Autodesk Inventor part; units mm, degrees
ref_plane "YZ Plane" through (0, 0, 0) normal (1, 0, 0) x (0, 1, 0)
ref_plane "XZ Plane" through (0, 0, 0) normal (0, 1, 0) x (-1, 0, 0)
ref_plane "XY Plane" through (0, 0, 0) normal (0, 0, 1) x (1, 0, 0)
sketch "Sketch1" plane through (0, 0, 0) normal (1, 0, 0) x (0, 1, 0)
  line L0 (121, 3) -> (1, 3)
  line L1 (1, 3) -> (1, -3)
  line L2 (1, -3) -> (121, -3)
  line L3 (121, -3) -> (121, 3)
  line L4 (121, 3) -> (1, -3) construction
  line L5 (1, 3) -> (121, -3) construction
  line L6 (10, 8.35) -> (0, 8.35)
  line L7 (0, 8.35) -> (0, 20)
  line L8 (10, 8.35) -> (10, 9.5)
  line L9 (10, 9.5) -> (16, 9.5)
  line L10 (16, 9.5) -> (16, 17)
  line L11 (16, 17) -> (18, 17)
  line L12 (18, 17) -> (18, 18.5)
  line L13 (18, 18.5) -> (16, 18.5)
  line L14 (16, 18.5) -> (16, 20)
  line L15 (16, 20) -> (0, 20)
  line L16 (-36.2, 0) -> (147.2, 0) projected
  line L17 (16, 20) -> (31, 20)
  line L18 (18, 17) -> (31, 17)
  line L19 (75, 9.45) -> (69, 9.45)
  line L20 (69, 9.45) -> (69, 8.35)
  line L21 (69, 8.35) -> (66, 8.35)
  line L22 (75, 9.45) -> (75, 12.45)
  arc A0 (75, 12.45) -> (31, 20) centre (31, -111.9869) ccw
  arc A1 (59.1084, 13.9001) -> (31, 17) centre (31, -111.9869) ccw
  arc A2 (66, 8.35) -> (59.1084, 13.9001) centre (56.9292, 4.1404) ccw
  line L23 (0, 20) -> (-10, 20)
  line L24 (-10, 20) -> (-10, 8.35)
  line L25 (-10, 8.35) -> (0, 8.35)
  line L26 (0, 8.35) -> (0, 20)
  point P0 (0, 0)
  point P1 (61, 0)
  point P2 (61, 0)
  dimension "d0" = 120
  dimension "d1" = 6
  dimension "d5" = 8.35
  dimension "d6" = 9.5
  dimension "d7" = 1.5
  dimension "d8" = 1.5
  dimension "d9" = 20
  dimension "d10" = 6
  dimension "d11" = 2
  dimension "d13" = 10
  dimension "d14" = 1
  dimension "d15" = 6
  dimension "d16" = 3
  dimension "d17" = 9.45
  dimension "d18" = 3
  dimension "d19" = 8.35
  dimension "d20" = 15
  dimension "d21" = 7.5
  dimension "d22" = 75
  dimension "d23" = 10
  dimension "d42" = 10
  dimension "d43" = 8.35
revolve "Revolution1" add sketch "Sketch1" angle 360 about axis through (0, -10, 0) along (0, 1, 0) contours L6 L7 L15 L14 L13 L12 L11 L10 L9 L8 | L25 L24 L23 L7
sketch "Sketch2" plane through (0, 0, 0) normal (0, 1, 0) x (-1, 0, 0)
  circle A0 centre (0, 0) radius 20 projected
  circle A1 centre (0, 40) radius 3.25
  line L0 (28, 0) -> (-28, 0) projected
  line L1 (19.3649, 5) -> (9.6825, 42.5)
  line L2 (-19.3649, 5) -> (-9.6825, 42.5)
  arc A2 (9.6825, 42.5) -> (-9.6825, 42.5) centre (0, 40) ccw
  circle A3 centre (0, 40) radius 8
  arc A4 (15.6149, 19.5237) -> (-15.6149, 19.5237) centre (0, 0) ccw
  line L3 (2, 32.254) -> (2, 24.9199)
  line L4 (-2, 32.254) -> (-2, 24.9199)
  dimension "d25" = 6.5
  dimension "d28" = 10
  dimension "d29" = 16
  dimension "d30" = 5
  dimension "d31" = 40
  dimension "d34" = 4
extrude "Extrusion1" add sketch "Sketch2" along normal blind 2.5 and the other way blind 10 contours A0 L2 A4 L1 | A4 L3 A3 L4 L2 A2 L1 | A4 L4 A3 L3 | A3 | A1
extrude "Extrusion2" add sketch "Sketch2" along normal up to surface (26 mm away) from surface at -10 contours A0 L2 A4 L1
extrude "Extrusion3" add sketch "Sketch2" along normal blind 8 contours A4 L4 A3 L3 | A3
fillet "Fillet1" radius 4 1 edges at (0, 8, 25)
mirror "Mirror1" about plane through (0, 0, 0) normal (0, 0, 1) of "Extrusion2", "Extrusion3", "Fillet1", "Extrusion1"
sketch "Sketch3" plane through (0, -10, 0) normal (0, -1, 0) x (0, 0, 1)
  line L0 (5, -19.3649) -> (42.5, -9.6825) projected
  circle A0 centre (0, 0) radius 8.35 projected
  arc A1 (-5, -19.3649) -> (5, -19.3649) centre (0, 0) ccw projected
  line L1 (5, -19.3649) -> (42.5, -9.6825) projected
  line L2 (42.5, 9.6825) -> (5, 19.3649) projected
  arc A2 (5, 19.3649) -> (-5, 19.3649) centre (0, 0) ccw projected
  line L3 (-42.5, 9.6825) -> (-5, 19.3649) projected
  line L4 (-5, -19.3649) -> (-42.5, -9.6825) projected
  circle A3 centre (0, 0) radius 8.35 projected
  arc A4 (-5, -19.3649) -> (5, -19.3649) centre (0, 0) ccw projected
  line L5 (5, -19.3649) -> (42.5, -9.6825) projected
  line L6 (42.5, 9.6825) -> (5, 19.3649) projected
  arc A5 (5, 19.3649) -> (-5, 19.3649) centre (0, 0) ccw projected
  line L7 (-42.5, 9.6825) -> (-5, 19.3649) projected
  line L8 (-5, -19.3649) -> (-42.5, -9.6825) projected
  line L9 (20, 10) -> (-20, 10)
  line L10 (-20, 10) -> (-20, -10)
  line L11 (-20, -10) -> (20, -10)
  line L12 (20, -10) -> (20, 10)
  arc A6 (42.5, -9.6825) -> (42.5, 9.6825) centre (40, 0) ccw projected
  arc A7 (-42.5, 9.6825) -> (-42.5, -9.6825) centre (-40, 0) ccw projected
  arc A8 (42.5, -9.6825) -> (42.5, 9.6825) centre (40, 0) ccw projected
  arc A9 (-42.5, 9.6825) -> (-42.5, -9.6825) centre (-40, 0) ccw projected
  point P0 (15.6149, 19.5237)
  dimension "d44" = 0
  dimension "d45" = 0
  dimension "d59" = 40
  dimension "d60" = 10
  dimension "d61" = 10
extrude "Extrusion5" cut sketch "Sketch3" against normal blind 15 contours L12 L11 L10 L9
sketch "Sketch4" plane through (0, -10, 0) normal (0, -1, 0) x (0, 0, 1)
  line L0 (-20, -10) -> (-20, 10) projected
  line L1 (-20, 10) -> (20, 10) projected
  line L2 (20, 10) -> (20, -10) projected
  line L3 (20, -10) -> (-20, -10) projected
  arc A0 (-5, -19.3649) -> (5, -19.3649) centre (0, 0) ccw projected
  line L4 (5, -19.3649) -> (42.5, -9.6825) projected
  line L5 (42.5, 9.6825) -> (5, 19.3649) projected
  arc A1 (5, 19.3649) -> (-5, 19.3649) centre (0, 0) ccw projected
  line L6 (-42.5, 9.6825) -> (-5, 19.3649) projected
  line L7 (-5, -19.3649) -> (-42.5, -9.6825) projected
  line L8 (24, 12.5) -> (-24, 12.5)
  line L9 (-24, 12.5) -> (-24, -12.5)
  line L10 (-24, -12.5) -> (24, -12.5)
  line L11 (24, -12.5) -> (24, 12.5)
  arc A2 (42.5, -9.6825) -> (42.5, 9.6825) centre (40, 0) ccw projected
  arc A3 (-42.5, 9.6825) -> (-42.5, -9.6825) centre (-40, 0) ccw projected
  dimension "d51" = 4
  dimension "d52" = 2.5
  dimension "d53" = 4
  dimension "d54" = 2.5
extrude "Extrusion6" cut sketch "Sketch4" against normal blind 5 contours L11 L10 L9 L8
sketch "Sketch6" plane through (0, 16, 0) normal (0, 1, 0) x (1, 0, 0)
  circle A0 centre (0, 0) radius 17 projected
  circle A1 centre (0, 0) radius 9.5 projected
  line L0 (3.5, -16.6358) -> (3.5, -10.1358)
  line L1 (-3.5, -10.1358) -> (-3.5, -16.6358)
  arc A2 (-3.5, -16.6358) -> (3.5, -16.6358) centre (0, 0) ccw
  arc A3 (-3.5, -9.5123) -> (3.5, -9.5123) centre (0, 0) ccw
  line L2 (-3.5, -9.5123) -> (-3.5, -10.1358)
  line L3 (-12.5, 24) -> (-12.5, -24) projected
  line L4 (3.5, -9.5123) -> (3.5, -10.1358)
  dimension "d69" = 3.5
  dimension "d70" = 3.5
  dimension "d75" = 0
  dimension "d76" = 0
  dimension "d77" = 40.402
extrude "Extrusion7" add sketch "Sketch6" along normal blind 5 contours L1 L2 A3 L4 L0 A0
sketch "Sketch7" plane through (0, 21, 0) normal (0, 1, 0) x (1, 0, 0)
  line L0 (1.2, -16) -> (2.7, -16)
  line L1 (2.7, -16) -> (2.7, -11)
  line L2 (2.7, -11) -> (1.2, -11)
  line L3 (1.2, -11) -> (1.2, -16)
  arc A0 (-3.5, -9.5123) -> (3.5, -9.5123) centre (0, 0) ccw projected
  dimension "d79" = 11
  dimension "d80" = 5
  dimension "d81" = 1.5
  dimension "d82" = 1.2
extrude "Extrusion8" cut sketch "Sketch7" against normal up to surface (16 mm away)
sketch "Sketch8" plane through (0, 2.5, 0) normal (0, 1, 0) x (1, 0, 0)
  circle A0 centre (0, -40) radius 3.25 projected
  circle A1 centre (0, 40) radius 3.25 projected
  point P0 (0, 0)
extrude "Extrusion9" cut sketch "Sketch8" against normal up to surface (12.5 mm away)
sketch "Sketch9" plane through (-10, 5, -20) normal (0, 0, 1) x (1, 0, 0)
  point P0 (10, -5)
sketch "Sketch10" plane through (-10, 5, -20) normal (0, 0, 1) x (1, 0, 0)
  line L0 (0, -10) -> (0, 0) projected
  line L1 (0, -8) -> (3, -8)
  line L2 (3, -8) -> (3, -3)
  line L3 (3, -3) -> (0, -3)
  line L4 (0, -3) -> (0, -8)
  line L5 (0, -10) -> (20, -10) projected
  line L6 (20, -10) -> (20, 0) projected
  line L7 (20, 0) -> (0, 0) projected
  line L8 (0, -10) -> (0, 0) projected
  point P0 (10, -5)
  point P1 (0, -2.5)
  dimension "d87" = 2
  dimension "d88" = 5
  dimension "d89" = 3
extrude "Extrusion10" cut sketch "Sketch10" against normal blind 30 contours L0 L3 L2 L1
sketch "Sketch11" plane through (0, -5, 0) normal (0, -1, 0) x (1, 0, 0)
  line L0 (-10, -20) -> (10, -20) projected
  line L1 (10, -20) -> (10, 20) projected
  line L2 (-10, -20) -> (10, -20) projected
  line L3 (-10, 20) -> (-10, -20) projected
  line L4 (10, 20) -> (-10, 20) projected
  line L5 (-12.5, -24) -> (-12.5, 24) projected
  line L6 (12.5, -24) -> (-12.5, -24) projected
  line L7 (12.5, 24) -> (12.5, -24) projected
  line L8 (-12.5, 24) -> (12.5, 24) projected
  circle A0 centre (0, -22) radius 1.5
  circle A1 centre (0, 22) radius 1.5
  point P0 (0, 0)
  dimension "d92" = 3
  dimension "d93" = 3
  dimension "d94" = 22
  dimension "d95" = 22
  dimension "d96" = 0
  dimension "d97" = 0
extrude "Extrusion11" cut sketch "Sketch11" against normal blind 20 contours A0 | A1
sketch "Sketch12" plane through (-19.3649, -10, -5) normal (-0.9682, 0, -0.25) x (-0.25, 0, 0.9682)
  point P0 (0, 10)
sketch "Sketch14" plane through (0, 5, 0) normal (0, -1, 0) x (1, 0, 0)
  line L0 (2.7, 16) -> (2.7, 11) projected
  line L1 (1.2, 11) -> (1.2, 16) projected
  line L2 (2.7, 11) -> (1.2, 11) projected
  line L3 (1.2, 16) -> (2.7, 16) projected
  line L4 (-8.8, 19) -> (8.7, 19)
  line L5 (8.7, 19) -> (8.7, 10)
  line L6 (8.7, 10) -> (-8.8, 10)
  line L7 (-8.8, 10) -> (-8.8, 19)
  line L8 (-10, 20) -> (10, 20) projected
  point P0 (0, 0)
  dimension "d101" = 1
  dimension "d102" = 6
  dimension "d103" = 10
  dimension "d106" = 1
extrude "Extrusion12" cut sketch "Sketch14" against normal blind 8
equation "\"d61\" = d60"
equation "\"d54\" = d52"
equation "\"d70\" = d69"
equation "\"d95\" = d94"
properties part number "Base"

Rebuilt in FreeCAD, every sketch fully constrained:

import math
import FreeCAD as App
import Part
import Sketcher
Q = App.Units.Quantity


def edges_at(feature, points):
    """Names of the edges that pass closest to the given points."""
    edges = feature.Shape.Edges
    near = lambda p: min(range(len(edges)), key=lambda i: edges[i].distToShape(Part.Vertex(*p))[0])
    return sorted({f"Edge{near(p) + 1}" for p in points})


def add_polygon(sketch, points):
    """Adds a closed chain of lines whose ends are joined by coincident constraints."""
    first, n = sketch.GeometryCount, len(points)
    for a, b in zip(points, points[1:] + points[:1]):
        sketch.addGeometry(Part.LineSegment(App.Vector(*a, 0), App.Vector(*b, 0)), False)
    for i in range(n):
        sketch.addConstraint(Sketcher.Constraint("Coincident", first + i, 2, first + (i + 1) % n, 1))

doc = App.newDocument("Part")
body = doc.addObject("PartDesign::Body", "Body")

# Sketch on YZ plane
sketch1 = body.newObject("Sketcher::SketchObject", "Sketch")
sketch1.AttachmentSupport = (doc.getObject("YZ_Plane"), [""])
sketch1.MapMode = "FlatFace"
add_polygon(sketch1, [(10, 8.35), (10, 9.5), (16, 9.5), (16, 17), (18, 17), (18, 18.5), (16, 18.5), (16, 20), (-10, 20), (-10, 8.35)])  # lines 0-9
sketch1.addConstraint([
    Sketcher.Constraint("Vertical", 0),
    Sketcher.Constraint("Horizontal", 1),
    Sketcher.Constraint("Vertical", 2),
    Sketcher.Constraint("Horizontal", 3),
    Sketcher.Constraint("Vertical", 4),
    Sketcher.Constraint("Horizontal", 5),
    Sketcher.Constraint("Vertical", 6),
    Sketcher.Constraint("Horizontal", 7),
    Sketcher.Constraint("Vertical", 8),
    Sketcher.Constraint("Horizontal", 9),
    Sketcher.Constraint("Vertical", 2, 2, 5, 2),
    Sketcher.Constraint("Equal", 4, 6),
    Sketcher.Constraint("DistanceX", 1, 1, 1, 2, Q("6 mm")),
    Sketcher.Constraint("DistanceX", 3, 1, 3, 2, Q("2 mm")),
    Sketcher.Constraint("DistanceX", 9, 1, 9, 2, Q("20 mm")),
    Sketcher.Constraint("DistanceY", 2, 1, 2, 2, Q("7.5 mm")),
    Sketcher.Constraint("DistanceY", 4, 1, 4, 2, Q("1.5 mm")),
    Sketcher.Constraint("DistanceX", -1, 1, 0, 2, Q("10 mm")),
    Sketcher.Constraint("DistanceY", -1, 1, 6, 2, Q("20 mm")),
    Sketcher.Constraint("DistanceY", -1, 1, 8, 2, Q("8.35 mm")),
])
revolution = body.newObject("PartDesign::Revolution", "Revolution")
revolution.Profile = sketch1
revolution.ReferenceAxis = (sketch1, ["H_Axis"])
revolution.Angle = 360

# Sketch on XZ plane
sketch2 = body.newObject("Sketcher::SketchObject", "Sketch001")
sketch2.AttachmentSupport = (doc.getObject("XZ_Plane"), [""])
sketch2.MapMode = "FlatFace"
sketch2.addGeometry([
    Part.ArcOfCircle(Part.Circle(App.Vector(0, 0, 0), App.Vector(0, 0, 1), 20), math.radians(14.477524), math.radians(165.522476)),
    Part.LineSegment(App.Vector(-19.3649, 5, 0), App.Vector(-9.6825, 42.5, 0)),
    Part.ArcOfCircle(Part.Circle(App.Vector(0, 40, 0), App.Vector(0, 0, 1), 10.00004), math.radians(14.477453), math.radians(165.522547)),
    Part.LineSegment(App.Vector(9.6825, 42.5, 0), App.Vector(19.3649, 5, 0)),
], False)
sketch2.addConstraint([
    Sketcher.Constraint("Tangent", 0, 2, 1, 1),
    Sketcher.Constraint("Tangent", 1, 2, 2, 2),
    Sketcher.Constraint("Tangent", 2, 1, 3, 1),
    Sketcher.Constraint("Tangent", 3, 2, 0, 1),
    Sketcher.Constraint("Coincident", 0, 3, -1, 1),
    Sketcher.Constraint("PointOnObject", 2, 3, -2),
    Sketcher.Constraint("Radius", 0, Q("20 mm")),
    Sketcher.Constraint("Radius", 2, Q("10 mm")),
    Sketcher.Constraint("DistanceY", -1, 1, 2, 3, Q("40 mm")),
])
pad1 = body.newObject("PartDesign::Pad", "Pad")
pad1.Profile = sketch2
pad1.Type = "TwoLengths"
pad1.Length = 2.5
pad1.Length2 = 10
pad1.Reversed = True

# Sketch on XZ plane
sketch3 = body.newObject("Sketcher::SketchObject", "Sketch002")
sketch3.AttachmentSupport = (doc.getObject("XZ_Plane"), [""])
sketch3.MapMode = "FlatFace"
sketch3.AttachmentOffset = App.Placement(App.Vector(0, 0, 10), App.Rotation())
sketch3.addGeometry([
    Part.ArcOfCircle(Part.Circle(App.Vector(0, 0, 0), App.Vector(0, 0, 1), 20), math.radians(14.477524), math.radians(165.522476)),
    Part.LineSegment(App.Vector(-19.3649, 5, 0), App.Vector(-15.614918, 19.523705, 0)),
    Part.ArcOfCircle(Part.Circle(App.Vector(0, 0, 0), App.Vector(0, 0, 1), 24.999999), math.radians(51.347458), math.radians(128.652542)),
    Part.LineSegment(App.Vector(15.614918, 19.523705, 0), App.Vector(19.3649, 5, 0)),
], False)
sketch3.addConstraint([
    Sketcher.Constraint("Tangent", 0, 2, 1, 1),
    Sketcher.Constraint("Coincident", 1, 2, 2, 2),
    Sketcher.Constraint("Coincident", 2, 1, 3, 1),
    Sketcher.Constraint("Tangent", 3, 2, 0, 1),
    Sketcher.Constraint("Coincident", 0, 3, -1, 1),
    Sketcher.Constraint("Coincident", 2, 3, -1, 1),
    Sketcher.Constraint("Horizontal", 1, 2, 2, 1),
    Sketcher.Constraint("Radius", 0, Q("20 mm")),
    Sketcher.Constraint("DistanceY", -1, 1, 0, 2, Q("5 mm")),
    Sketcher.Constraint("Radius", 2, Q("25 mm")),
])
pad2 = body.newObject("PartDesign::Pad", "Pad001")
pad2.Profile = sketch3
pad2.Length = 26
pad2.Reversed = True

# Sketch on XZ plane
sketch4 = body.newObject("Sketcher::SketchObject", "Sketch003")
sketch4.AttachmentSupport = (doc.getObject("XZ_Plane"), [""])
sketch4.MapMode = "FlatFace"
sketch4.addGeometry([
    Part.ArcOfCircle(Part.Circle(App.Vector(0, 0, 0), App.Vector(0, 0, 1), 24.999999), math.radians(85.411439), math.radians(94.588561)),  # 0
    Part.LineSegment(App.Vector(-2, 24.9199, 0), App.Vector(-2, 32.254, 0)),  # 1
    Part.ArcOfCircle(Part.Circle(App.Vector(0, 40, 0), App.Vector(0, 0, 1), 8), math.radians(-75.522547), math.radians(255.522547)),  # 2
    Part.LineSegment(App.Vector(2, 32.254, 0), App.Vector(2, 24.9199, 0)),  # 3
    Part.Circle(App.Vector(0, 40, 0), App.Vector(0, 0, 1), 3.25),  # 4
], False)
sketch4.addConstraint([
    Sketcher.Constraint("Coincident", 0, 2, 1, 1),
    Sketcher.Constraint("Coincident", 1, 2, 2, 2),
    Sketcher.Constraint("Coincident", 2, 1, 3, 1),
    Sketcher.Constraint("Coincident", 3, 2, 0, 1),
    Sketcher.Constraint("Vertical", 1),
    Sketcher.Constraint("Vertical", 3),
    Sketcher.Constraint("Coincident", 0, 3, -1, 1),
    Sketcher.Constraint("Coincident", 4, 3, 2, 3),
    Sketcher.Constraint("Symmetric", 1, 2, 2, 1, -2),
    Sketcher.Constraint("Radius", 2, Q("8 mm")),
    Sketcher.Constraint("Diameter", 4, Q("6.5 mm")),
    Sketcher.Constraint("DistanceY", -1, 1, 2, 3, Q("40 mm")),
    Sketcher.Constraint("Radius", 0, Q("25 mm")),
    Sketcher.Constraint("DistanceX", 1, 2, 2, 1, Q("4 mm")),
])
pad3 = body.newObject("PartDesign::Pad", "Pad002")
pad3.Profile = sketch4
pad3.Length = 8
pad3.Reversed = True
doc.recompute()

fillet = body.newObject("PartDesign::Fillet", "Fillet")
fillet.Base = (pad3, edges_at(pad3, [(0, 8, 25)]))
fillet.Radius = 4
doc.recompute()

mirrored = body.newObject("PartDesign::Mirrored", "Mirrored")
mirrored.Originals = [pad2, pad3, fillet, pad1]
mirrored.MirrorPlane = (doc.getObject("XY_Plane"), [""])
body.Tip = mirrored

# Sketch on XZ plane
sketch5 = body.newObject("Sketcher::SketchObject", "Sketch004")
sketch5.AttachmentSupport = (doc.getObject("XZ_Plane"), [""])
sketch5.MapMode = "FlatFace"
sketch5.AttachmentOffset = App.Placement(App.Vector(0, 0, 10), App.Rotation())
add_polygon(sketch5, [(10, 20), (-10, 20), (-10, -20), (10, -20)])  # lines 0-3
sketch5.addGeometry(Part.Circle(App.Vector(0, 0, 0), App.Vector(0, 0, 1), 8.35), False)  # 4
sketch5.addConstraint([
    Sketcher.Constraint("Horizontal", 0),
    Sketcher.Constraint("Vertical", 1),
    Sketcher.Constraint("Horizontal", 2),
    Sketcher.Constraint("Vertical", 3),
    Sketcher.Constraint("Coincident", 4, 3, -1, 1),
    Sketcher.Constraint("Symmetric", 0, 2, 2, 2, -1, 1),
    Sketcher.Constraint("DistanceY", 1, 2, 1, 1, Q("40 mm")),
    Sketcher.Constraint("DistanceX", 0, 2, -1, 1, Q("10 mm")),
    Sketcher.Constraint("Diameter", 4, Q("16.7 mm")),
])
pocket1 = body.newObject("PartDesign::Pocket", "Pocket")
pocket1.Profile = sketch5
pocket1.Length = 15

# Sketch on XZ plane
sketch6 = body.newObject("Sketcher::SketchObject", "Sketch005")
sketch6.AttachmentSupport = (doc.getObject("XZ_Plane"), [""])
sketch6.MapMode = "FlatFace"
sketch6.AttachmentOffset = App.Placement(App.Vector(0, 0, 10), App.Rotation())
add_polygon(sketch6, [(12.5, 24), (-12.5, 24), (-12.5, -24), (12.5, -24)])  # lines 0-3
add_polygon(sketch6, [(10, 20), (10, -20), (-10, -20), (-10, 20)])  # lines 4-7
sketch6.addConstraint([
    Sketcher.Constraint("Horizontal", 0),
    Sketcher.Constraint("Vertical", 1),
    Sketcher.Constraint("Horizontal", 2),
    Sketcher.Constraint("Vertical", 3),
    Sketcher.Constraint("Vertical", 4),
    Sketcher.Constraint("Horizontal", 5),
    Sketcher.Constraint("Vertical", 6),
    Sketcher.Constraint("Horizontal", 7),
    Sketcher.Constraint("Symmetric", 0, 2, 2, 2, -1, 1),
    Sketcher.Constraint("Symmetric", 4, 2, 6, 2, -1, 1),
    Sketcher.Constraint("DistanceY", 2, 2, 4, 2, Q("4 mm")),
    Sketcher.Constraint("DistanceX", 4, 2, 2, 2, Q("2.5 mm")),
    Sketcher.Constraint("DistanceX", 0, 2, 0, 1, Q("25 mm")),
    Sketcher.Constraint("DistanceY", 1, 2, 1, 1, Q("48 mm")),
])
pocket2 = body.newObject("PartDesign::Pocket", "Pocket001")
pocket2.Profile = sketch6
pocket2.Length = 5

# Sketch on XZ plane
sketch7 = body.newObject("Sketcher::SketchObject", "Sketch006")
sketch7.AttachmentSupport = (doc.getObject("XZ_Plane"), [""])
sketch7.MapMode = "FlatFace"
sketch7.AttachmentOffset = App.Placement(App.Vector(0, 0, -16), App.Rotation())
sketch7.addGeometry([
    Part.LineSegment(App.Vector(-3.5, 9.5123, 0), App.Vector(-3.5, 16.6358, 0)),
    Part.ArcOfCircle(Part.Circle(App.Vector(0, 0, 0), App.Vector(0, 0, 1), 17), math.radians(78.118841), math.radians(101.881159)),
    Part.LineSegment(App.Vector(3.5, 16.6358, 0), App.Vector(3.5, 9.5123, 0)),
    Part.ArcOfCircle(Part.Circle(App.Vector(0, 0, 0), App.Vector(0, 0, 1), 10.135771), math.radians(69.799177), math.radians(110.200823)),
], False)
sketch7.addConstraint([
    Sketcher.Constraint("Coincident", 0, 2, 1, 2),
    Sketcher.Constraint("Coincident", 1, 1, 2, 1),
    Sketcher.Constraint("Coincident", 2, 2, 3, 1),
    Sketcher.Constraint("Coincident", 3, 2, 0, 1),
    Sketcher.Constraint("Vertical", 0),
    Sketcher.Constraint("Vertical", 2),
    Sketcher.Constraint("Coincident", 1, 3, -1, 1),
    Sketcher.Constraint("Coincident", 3, 3, -1, 1),
    Sketcher.Constraint("Horizontal", 0, 2, 1, 1),
    Sketcher.Constraint("Radius", 1, Q("17 mm")),
    Sketcher.Constraint("DistanceX", 0, 2, -1, 1, Q("3.5 mm")),
    Sketcher.Constraint("Radius", 3, Q("10.1358 mm")),
])
pad4 = body.newObject("PartDesign::Pad", "Pad003")
pad4.Profile = sketch7
pad4.Length = 5
pad4.Reversed = True

# Sketch on XZ plane
sketch8 = body.newObject("Sketcher::SketchObject", "Sketch007")
sketch8.AttachmentSupport = (doc.getObject("XZ_Plane"), [""])
sketch8.MapMode = "FlatFace"
sketch8.AttachmentOffset = App.Placement(App.Vector(0, 0, -21), App.Rotation())
add_polygon(sketch8, [(1.2, 11), (1.2, 16), (2.7, 16), (2.7, 11)])  # lines 0-3
sketch8.addConstraint([
    Sketcher.Constraint("Vertical", 0),
    Sketcher.Constraint("Horizontal", 1),
    Sketcher.Constraint("Vertical", 2),
    Sketcher.Constraint("Horizontal", 3),
    Sketcher.Constraint("DistanceY", 0, 1, 0, 2, Q("5 mm")),
    Sketcher.Constraint("DistanceX", 1, 1, 1, 2, Q("1.5 mm")),
    Sketcher.Constraint("DistanceY", -1, 1, 2, 2, Q("11 mm")),
    Sketcher.Constraint("DistanceX", -1, 1, 0, 2, Q("1.2 mm")),
])
pocket3 = body.newObject("PartDesign::Pocket", "Pocket002")
pocket3.Profile = sketch8
pocket3.Length = 16
pocket3.Reversed = True

# Sketch on XZ plane
sketch9 = body.newObject("Sketcher::SketchObject", "Sketch008")
sketch9.AttachmentSupport = (doc.getObject("XZ_Plane"), [""])
sketch9.MapMode = "FlatFace"
sketch9.AttachmentOffset = App.Placement(App.Vector(0, 0, -2.5), App.Rotation())
sketch9.addGeometry([
    Part.Circle(App.Vector(0, 40, 0), App.Vector(0, 0, 1), 3.25),
    Part.Circle(App.Vector(0, -40, 0), App.Vector(0, 0, 1), 3.25),
], False)
sketch9.addConstraint([
    Sketcher.Constraint("Equal", 0, 1),
    Sketcher.Constraint("Symmetric", 0, 3, 1, 3, -1, 1),
    Sketcher.Constraint("PointOnObject", 0, 3, -2),
    Sketcher.Constraint("Diameter", 0, Q("6.5 mm")),
    Sketcher.Constraint("DistanceY", -1, 1, 0, 3, Q("40 mm")),
])
pocket4 = body.newObject("PartDesign::Pocket", "Pocket003")
pocket4.Profile = sketch9
pocket4.Length = 12.5
pocket4.Reversed = True

# Sketch on XY plane
sketch10 = body.newObject("Sketcher::SketchObject", "Sketch009")
sketch10.AttachmentSupport = (doc.getObject("XY_Plane"), [""])
sketch10.MapMode = "FlatFace"
sketch10.AttachmentOffset = App.Placement(App.Vector(0, 0, -20), App.Rotation())
add_polygon(sketch10, [(-10, 2), (-10, -3), (-7, -3), (-7, 2)])  # lines 0-3
sketch10.addConstraint([
    Sketcher.Constraint("Vertical", 0),
    Sketcher.Constraint("Horizontal", 1),
    Sketcher.Constraint("Vertical", 2),
    Sketcher.Constraint("Horizontal", 3),
    Sketcher.Constraint("DistanceX", 1, 1, 1, 2, Q("3 mm")),
    Sketcher.Constraint("DistanceY", 0, 2, 0, 1, Q("5 mm")),
    Sketcher.Constraint("DistanceY", 0, 2, -1, 1, Q("3 mm")),
    Sketcher.Constraint("DistanceX", 0, 2, -1, 1, Q("10 mm")),
])
pocket5 = body.newObject("PartDesign::Pocket", "Pocket004")
pocket5.Profile = sketch10
pocket5.Length = 30

# Sketch on XZ plane
sketch11 = body.newObject("Sketcher::SketchObject", "Sketch010")
sketch11.AttachmentSupport = (doc.getObject("XZ_Plane"), [""])
sketch11.MapMode = "FlatFace"
sketch11.AttachmentOffset = App.Placement(App.Vector(0, 0, 5), App.Rotation())
sketch11.addGeometry([
    Part.Circle(App.Vector(0, -22, 0), App.Vector(0, 0, 1), 1.5),
    Part.Circle(App.Vector(0, 22, 0), App.Vector(0, 0, 1), 1.5),
], False)
sketch11.addConstraint([
    Sketcher.Constraint("Equal", 0, 1),
    Sketcher.Constraint("Symmetric", 0, 3, 1, 3, -1, 1),
    Sketcher.Constraint("PointOnObject", 0, 3, -2),
    Sketcher.Constraint("Diameter", 0, Q("3 mm")),
    Sketcher.Constraint("DistanceY", 0, 3, -1, 1, Q("22 mm")),
])
pocket6 = body.newObject("PartDesign::Pocket", "Pocket005")
pocket6.Profile = sketch11
pocket6.Length = 20

# Sketch on XZ plane
sketch12 = body.newObject("Sketcher::SketchObject", "Sketch011")
sketch12.AttachmentSupport = (doc.getObject("XZ_Plane"), [""])
sketch12.MapMode = "FlatFace"
sketch12.AttachmentOffset = App.Placement(App.Vector(0, 0, -5), App.Rotation())
add_polygon(sketch12, [(8.7, 19), (-8.8, 19), (-8.8, 10), (8.7, 10)])  # lines 0-3
add_polygon(sketch12, [(1.2, 16), (2.7, 16), (2.7, 11), (1.2, 11)])  # lines 4-7
sketch12.addConstraint([
    Sketcher.Constraint("Horizontal", 0),
    Sketcher.Constraint("Vertical", 1),
    Sketcher.Constraint("Horizontal", 2),
    Sketcher.Constraint("Vertical", 3),
    Sketcher.Constraint("Horizontal", 4),
    Sketcher.Constraint("Vertical", 5),
    Sketcher.Constraint("Horizontal", 6),
    Sketcher.Constraint("Vertical", 7),
    Sketcher.Constraint("DistanceY", -1, 1, 1, 2, Q("10 mm")),
    Sketcher.Constraint("DistanceX", 4, 2, 3, 2, Q("6 mm")),
    Sketcher.Constraint("DistanceY", 2, 2, 4, 2, Q("6 mm")),
    Sketcher.Constraint("DistanceY", 2, 2, 5, 2, Q("1 mm")),
    Sketcher.Constraint("DistanceX", 1, 2, 6, 2, Q("10 mm")),
    Sketcher.Constraint("DistanceY", 1, 2, 1, 1, Q("9 mm")),
    Sketcher.Constraint("DistanceX", 0, 2, 0, 1, Q("17.5 mm")),
    Sketcher.Constraint("DistanceX", 0, 2, -1, 1, Q("8.8 mm")),
])
pocket7 = body.newObject("PartDesign::Pocket", "Pocket006")
pocket7.Profile = sketch12
pocket7.Length = 8

doc.recompute()
